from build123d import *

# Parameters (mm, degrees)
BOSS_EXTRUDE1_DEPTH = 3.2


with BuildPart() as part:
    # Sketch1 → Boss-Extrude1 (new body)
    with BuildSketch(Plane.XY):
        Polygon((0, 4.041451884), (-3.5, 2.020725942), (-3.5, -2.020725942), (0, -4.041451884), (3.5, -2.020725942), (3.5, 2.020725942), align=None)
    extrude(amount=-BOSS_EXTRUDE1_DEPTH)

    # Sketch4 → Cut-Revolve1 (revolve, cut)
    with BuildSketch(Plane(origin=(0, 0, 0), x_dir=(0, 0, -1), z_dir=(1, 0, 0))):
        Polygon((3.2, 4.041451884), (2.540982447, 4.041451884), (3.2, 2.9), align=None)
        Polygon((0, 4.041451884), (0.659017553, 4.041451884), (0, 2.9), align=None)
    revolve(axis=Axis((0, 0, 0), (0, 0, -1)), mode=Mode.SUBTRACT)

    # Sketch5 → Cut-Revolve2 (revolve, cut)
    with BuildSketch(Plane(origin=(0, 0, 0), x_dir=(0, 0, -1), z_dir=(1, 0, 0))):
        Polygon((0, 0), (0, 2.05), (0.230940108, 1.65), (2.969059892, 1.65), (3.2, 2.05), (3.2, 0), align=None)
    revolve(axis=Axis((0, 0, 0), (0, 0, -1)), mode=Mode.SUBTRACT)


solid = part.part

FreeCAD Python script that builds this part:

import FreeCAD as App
import Part
import Sketcher

V = App.Vector
Q = App.Units.Quantity


def add_polygon(sketch, points):
    """Adds a closed chain of lines whose ends are joined by coincident constraints."""
    first, n = sketch.GeometryCount, len(points)
    for a, b in zip(points, points[1:] + points[:1]):
        sketch.addGeometry(Part.LineSegment(App.Vector(*a, 0), App.Vector(*b, 0)), False)
    for i in range(n):
        sketch.addConstraint(Sketcher.Constraint("Coincident", first + i, 2, first + (i + 1) % n, 1))

doc = App.newDocument("Part")
params = doc.addObject("Spreadsheet::Sheet", "Params")
for row, (alias, value) in enumerate([
    ("pad1_length", "3.2 mm"),
    ("groove_angle", "360 deg"),
    ("sketch3_height", "3.2 mm"),
    ("sketch3_width", "2.05 mm"),
    ("groove2_angle", "360 deg"),
], start=1):
    params.set(f"A{row}", alias)
    params.set(f"B{row}", "=" + value)
    params.setAlias(f"B{row}", alias)

body = doc.addObject("PartDesign::Body", "Body")

# Sketch on XY plane
sketch1 = doc.addObject("Sketcher::SketchObject", "Sketch")
body.addObject(sketch1)
sketch1.AttachmentSupport = (doc.XY_Plane, [""])
sketch1.MapMode = "FlatFace"
add_polygon(sketch1, [(0, 4), (-3.5, 2), (-3.5, -2), (0, -4), (3.5, -2), (3.5, 2)])  # lines 0-5
sketch1.addConstraint(Sketcher.Constraint("Vertical", 1))
sketch1.addConstraint(Sketcher.Constraint("Vertical", 4))
sketch1.addConstraint(Sketcher.Constraint("Symmetric", 0, 2, 3, 2, -1, 1))
sketch1.addConstraint(Sketcher.Constraint("Symmetric", 2, 2, 5, 2, -1, 1))
sketch1.addConstraint(Sketcher.Constraint("PointOnObject", 2, 2, -2))
sketch1.addConstraint(Sketcher.Constraint("Parallel", 2, 5))
sketch1.addConstraint(Sketcher.Constraint("Horizontal", 1, 2, 3, 2))
sketch1.addConstraint(Sketcher.Constraint("Angle", 0, Q("-150 deg")))
sketch1.addConstraint(Sketcher.Constraint("DistanceX", 1, 2, 3, 2, Q("7 mm")))
sketch1.addConstraint(Sketcher.Constraint("DistanceY", 1, 2, 1, 1, Q("4.041452 mm")))
pad1 = doc.addObject("PartDesign::Pad", "Pad")
body.addObject(pad1)
pad1.Profile = sketch1
pad1.setExpression("Length", "Params.pad1_length")
pad1.Reversed = True

# Sketch on YZ plane
sketch2 = doc.addObject("Sketcher::SketchObject", "Sketch001")
body.addObject(sketch2)
sketch2.AttachmentSupport = (doc.YZ_Plane, [""])
sketch2.MapMode = "FlatFace"
add_polygon(sketch2, [(4, -3.2), (4, -2.5), (2.9, -3.2)])  # lines 0-2
add_polygon(sketch2, [(4, -0.7), (4, 0), (2.9, 0)])  # lines 3-5
sketch2.addConstraint(Sketcher.Constraint("Vertical", 0))
sketch2.addConstraint(Sketcher.Constraint("Horizontal", 2))
sketch2.addConstraint(Sketcher.Constraint("Vertical", 3))
sketch2.addConstraint(Sketcher.Constraint("Horizontal", 4))
sketch2.addConstraint(Sketcher.Constraint("PointOnObject", 3, 2, -1))
sketch2.addConstraint(Sketcher.Constraint("Vertical", 2, 2, 3, 2))
sketch2.addConstraint(Sketcher.Constraint("Vertical", 1, 2, 4, 2))
sketch2.addConstraint(Sketcher.Constraint("Equal", 0, 3))
sketch2.addConstraint(Sketcher.Constraint("Angle", 1, Q("-150 deg")))
sketch2.addConstraint(Sketcher.Constraint("DistanceX", -1, 1, 1, 2, Q("2.9 mm")))
sketch2.addConstraint(Sketcher.Constraint("DistanceY", 1, 2, -1, 1, Q("3.2 mm")))
sketch2.addConstraint(Sketcher.Constraint("DistanceX", 2, 1, 2, 2, Q("1.141452 mm")))
groove = doc.addObject("PartDesign::Groove", "Groove")
body.addObject(groove)
groove.Profile = sketch2
groove.ReferenceAxis = (sketch2, ["V_Axis"])
groove.setExpression("Angle", "Params.groove_angle")

# Sketch on YZ plane
sketch3 = doc.addObject("Sketcher::SketchObject", "Sketch002")
body.addObject(sketch3)
sketch3.AttachmentSupport = (doc.YZ_Plane, [""])
sketch3.MapMode = "FlatFace"
add_polygon(sketch3, [(2.05, 0), (0, 0), (0, -3.2), (2.05, -3.2), (1.65, -2.97), (1.65, -0.23)])  # lines 0-5
sketch3.addConstraint(Sketcher.Constraint("Horizontal", 0))
sketch3.addConstraint(Sketcher.Constraint("Vertical", 1))
sketch3.addConstraint(Sketcher.Constraint("Horizontal", 2))
sketch3.addConstraint(Sketcher.Constraint("Vertical", 4))
sketch3.addConstraint(Sketcher.Constraint("Coincident", 0, 2, -1, 1))
sketch3.addConstraint(Sketcher.Constraint("Vertical", 2, 2, 5, 2))
sketch3.addConstraint(Sketcher.Constraint("Equal", 3, 5))
sketch3.addConstraint(Sketcher.Constraint("Angle", 3, Q("150 deg")))
sketch3.addConstraint(Sketcher.Constraint("DistanceY", 1, 2, 1, 1, Q("3.2 mm")))
sketch3.addConstraint(Sketcher.Constraint("DistanceX", 0, 2, 0, 1, Q("2.05 mm")))
sketch3.addConstraint(Sketcher.Constraint("DistanceX", 3, 2, 2, 2, Q("0.4 mm")))
sketch3.setExpression("Constraints[14]", "Params.sketch3_height")
sketch3.setExpression("Constraints[15]", "Params.sketch3_width")
groove2 = doc.addObject("PartDesign::Groove", "Groove001")
body.addObject(groove2)
groove2.Profile = sketch3
groove2.ReferenceAxis = (sketch3, ["V_Axis"])
groove2.setExpression("Angle", "Params.groove2_angle")

doc.recompute()
